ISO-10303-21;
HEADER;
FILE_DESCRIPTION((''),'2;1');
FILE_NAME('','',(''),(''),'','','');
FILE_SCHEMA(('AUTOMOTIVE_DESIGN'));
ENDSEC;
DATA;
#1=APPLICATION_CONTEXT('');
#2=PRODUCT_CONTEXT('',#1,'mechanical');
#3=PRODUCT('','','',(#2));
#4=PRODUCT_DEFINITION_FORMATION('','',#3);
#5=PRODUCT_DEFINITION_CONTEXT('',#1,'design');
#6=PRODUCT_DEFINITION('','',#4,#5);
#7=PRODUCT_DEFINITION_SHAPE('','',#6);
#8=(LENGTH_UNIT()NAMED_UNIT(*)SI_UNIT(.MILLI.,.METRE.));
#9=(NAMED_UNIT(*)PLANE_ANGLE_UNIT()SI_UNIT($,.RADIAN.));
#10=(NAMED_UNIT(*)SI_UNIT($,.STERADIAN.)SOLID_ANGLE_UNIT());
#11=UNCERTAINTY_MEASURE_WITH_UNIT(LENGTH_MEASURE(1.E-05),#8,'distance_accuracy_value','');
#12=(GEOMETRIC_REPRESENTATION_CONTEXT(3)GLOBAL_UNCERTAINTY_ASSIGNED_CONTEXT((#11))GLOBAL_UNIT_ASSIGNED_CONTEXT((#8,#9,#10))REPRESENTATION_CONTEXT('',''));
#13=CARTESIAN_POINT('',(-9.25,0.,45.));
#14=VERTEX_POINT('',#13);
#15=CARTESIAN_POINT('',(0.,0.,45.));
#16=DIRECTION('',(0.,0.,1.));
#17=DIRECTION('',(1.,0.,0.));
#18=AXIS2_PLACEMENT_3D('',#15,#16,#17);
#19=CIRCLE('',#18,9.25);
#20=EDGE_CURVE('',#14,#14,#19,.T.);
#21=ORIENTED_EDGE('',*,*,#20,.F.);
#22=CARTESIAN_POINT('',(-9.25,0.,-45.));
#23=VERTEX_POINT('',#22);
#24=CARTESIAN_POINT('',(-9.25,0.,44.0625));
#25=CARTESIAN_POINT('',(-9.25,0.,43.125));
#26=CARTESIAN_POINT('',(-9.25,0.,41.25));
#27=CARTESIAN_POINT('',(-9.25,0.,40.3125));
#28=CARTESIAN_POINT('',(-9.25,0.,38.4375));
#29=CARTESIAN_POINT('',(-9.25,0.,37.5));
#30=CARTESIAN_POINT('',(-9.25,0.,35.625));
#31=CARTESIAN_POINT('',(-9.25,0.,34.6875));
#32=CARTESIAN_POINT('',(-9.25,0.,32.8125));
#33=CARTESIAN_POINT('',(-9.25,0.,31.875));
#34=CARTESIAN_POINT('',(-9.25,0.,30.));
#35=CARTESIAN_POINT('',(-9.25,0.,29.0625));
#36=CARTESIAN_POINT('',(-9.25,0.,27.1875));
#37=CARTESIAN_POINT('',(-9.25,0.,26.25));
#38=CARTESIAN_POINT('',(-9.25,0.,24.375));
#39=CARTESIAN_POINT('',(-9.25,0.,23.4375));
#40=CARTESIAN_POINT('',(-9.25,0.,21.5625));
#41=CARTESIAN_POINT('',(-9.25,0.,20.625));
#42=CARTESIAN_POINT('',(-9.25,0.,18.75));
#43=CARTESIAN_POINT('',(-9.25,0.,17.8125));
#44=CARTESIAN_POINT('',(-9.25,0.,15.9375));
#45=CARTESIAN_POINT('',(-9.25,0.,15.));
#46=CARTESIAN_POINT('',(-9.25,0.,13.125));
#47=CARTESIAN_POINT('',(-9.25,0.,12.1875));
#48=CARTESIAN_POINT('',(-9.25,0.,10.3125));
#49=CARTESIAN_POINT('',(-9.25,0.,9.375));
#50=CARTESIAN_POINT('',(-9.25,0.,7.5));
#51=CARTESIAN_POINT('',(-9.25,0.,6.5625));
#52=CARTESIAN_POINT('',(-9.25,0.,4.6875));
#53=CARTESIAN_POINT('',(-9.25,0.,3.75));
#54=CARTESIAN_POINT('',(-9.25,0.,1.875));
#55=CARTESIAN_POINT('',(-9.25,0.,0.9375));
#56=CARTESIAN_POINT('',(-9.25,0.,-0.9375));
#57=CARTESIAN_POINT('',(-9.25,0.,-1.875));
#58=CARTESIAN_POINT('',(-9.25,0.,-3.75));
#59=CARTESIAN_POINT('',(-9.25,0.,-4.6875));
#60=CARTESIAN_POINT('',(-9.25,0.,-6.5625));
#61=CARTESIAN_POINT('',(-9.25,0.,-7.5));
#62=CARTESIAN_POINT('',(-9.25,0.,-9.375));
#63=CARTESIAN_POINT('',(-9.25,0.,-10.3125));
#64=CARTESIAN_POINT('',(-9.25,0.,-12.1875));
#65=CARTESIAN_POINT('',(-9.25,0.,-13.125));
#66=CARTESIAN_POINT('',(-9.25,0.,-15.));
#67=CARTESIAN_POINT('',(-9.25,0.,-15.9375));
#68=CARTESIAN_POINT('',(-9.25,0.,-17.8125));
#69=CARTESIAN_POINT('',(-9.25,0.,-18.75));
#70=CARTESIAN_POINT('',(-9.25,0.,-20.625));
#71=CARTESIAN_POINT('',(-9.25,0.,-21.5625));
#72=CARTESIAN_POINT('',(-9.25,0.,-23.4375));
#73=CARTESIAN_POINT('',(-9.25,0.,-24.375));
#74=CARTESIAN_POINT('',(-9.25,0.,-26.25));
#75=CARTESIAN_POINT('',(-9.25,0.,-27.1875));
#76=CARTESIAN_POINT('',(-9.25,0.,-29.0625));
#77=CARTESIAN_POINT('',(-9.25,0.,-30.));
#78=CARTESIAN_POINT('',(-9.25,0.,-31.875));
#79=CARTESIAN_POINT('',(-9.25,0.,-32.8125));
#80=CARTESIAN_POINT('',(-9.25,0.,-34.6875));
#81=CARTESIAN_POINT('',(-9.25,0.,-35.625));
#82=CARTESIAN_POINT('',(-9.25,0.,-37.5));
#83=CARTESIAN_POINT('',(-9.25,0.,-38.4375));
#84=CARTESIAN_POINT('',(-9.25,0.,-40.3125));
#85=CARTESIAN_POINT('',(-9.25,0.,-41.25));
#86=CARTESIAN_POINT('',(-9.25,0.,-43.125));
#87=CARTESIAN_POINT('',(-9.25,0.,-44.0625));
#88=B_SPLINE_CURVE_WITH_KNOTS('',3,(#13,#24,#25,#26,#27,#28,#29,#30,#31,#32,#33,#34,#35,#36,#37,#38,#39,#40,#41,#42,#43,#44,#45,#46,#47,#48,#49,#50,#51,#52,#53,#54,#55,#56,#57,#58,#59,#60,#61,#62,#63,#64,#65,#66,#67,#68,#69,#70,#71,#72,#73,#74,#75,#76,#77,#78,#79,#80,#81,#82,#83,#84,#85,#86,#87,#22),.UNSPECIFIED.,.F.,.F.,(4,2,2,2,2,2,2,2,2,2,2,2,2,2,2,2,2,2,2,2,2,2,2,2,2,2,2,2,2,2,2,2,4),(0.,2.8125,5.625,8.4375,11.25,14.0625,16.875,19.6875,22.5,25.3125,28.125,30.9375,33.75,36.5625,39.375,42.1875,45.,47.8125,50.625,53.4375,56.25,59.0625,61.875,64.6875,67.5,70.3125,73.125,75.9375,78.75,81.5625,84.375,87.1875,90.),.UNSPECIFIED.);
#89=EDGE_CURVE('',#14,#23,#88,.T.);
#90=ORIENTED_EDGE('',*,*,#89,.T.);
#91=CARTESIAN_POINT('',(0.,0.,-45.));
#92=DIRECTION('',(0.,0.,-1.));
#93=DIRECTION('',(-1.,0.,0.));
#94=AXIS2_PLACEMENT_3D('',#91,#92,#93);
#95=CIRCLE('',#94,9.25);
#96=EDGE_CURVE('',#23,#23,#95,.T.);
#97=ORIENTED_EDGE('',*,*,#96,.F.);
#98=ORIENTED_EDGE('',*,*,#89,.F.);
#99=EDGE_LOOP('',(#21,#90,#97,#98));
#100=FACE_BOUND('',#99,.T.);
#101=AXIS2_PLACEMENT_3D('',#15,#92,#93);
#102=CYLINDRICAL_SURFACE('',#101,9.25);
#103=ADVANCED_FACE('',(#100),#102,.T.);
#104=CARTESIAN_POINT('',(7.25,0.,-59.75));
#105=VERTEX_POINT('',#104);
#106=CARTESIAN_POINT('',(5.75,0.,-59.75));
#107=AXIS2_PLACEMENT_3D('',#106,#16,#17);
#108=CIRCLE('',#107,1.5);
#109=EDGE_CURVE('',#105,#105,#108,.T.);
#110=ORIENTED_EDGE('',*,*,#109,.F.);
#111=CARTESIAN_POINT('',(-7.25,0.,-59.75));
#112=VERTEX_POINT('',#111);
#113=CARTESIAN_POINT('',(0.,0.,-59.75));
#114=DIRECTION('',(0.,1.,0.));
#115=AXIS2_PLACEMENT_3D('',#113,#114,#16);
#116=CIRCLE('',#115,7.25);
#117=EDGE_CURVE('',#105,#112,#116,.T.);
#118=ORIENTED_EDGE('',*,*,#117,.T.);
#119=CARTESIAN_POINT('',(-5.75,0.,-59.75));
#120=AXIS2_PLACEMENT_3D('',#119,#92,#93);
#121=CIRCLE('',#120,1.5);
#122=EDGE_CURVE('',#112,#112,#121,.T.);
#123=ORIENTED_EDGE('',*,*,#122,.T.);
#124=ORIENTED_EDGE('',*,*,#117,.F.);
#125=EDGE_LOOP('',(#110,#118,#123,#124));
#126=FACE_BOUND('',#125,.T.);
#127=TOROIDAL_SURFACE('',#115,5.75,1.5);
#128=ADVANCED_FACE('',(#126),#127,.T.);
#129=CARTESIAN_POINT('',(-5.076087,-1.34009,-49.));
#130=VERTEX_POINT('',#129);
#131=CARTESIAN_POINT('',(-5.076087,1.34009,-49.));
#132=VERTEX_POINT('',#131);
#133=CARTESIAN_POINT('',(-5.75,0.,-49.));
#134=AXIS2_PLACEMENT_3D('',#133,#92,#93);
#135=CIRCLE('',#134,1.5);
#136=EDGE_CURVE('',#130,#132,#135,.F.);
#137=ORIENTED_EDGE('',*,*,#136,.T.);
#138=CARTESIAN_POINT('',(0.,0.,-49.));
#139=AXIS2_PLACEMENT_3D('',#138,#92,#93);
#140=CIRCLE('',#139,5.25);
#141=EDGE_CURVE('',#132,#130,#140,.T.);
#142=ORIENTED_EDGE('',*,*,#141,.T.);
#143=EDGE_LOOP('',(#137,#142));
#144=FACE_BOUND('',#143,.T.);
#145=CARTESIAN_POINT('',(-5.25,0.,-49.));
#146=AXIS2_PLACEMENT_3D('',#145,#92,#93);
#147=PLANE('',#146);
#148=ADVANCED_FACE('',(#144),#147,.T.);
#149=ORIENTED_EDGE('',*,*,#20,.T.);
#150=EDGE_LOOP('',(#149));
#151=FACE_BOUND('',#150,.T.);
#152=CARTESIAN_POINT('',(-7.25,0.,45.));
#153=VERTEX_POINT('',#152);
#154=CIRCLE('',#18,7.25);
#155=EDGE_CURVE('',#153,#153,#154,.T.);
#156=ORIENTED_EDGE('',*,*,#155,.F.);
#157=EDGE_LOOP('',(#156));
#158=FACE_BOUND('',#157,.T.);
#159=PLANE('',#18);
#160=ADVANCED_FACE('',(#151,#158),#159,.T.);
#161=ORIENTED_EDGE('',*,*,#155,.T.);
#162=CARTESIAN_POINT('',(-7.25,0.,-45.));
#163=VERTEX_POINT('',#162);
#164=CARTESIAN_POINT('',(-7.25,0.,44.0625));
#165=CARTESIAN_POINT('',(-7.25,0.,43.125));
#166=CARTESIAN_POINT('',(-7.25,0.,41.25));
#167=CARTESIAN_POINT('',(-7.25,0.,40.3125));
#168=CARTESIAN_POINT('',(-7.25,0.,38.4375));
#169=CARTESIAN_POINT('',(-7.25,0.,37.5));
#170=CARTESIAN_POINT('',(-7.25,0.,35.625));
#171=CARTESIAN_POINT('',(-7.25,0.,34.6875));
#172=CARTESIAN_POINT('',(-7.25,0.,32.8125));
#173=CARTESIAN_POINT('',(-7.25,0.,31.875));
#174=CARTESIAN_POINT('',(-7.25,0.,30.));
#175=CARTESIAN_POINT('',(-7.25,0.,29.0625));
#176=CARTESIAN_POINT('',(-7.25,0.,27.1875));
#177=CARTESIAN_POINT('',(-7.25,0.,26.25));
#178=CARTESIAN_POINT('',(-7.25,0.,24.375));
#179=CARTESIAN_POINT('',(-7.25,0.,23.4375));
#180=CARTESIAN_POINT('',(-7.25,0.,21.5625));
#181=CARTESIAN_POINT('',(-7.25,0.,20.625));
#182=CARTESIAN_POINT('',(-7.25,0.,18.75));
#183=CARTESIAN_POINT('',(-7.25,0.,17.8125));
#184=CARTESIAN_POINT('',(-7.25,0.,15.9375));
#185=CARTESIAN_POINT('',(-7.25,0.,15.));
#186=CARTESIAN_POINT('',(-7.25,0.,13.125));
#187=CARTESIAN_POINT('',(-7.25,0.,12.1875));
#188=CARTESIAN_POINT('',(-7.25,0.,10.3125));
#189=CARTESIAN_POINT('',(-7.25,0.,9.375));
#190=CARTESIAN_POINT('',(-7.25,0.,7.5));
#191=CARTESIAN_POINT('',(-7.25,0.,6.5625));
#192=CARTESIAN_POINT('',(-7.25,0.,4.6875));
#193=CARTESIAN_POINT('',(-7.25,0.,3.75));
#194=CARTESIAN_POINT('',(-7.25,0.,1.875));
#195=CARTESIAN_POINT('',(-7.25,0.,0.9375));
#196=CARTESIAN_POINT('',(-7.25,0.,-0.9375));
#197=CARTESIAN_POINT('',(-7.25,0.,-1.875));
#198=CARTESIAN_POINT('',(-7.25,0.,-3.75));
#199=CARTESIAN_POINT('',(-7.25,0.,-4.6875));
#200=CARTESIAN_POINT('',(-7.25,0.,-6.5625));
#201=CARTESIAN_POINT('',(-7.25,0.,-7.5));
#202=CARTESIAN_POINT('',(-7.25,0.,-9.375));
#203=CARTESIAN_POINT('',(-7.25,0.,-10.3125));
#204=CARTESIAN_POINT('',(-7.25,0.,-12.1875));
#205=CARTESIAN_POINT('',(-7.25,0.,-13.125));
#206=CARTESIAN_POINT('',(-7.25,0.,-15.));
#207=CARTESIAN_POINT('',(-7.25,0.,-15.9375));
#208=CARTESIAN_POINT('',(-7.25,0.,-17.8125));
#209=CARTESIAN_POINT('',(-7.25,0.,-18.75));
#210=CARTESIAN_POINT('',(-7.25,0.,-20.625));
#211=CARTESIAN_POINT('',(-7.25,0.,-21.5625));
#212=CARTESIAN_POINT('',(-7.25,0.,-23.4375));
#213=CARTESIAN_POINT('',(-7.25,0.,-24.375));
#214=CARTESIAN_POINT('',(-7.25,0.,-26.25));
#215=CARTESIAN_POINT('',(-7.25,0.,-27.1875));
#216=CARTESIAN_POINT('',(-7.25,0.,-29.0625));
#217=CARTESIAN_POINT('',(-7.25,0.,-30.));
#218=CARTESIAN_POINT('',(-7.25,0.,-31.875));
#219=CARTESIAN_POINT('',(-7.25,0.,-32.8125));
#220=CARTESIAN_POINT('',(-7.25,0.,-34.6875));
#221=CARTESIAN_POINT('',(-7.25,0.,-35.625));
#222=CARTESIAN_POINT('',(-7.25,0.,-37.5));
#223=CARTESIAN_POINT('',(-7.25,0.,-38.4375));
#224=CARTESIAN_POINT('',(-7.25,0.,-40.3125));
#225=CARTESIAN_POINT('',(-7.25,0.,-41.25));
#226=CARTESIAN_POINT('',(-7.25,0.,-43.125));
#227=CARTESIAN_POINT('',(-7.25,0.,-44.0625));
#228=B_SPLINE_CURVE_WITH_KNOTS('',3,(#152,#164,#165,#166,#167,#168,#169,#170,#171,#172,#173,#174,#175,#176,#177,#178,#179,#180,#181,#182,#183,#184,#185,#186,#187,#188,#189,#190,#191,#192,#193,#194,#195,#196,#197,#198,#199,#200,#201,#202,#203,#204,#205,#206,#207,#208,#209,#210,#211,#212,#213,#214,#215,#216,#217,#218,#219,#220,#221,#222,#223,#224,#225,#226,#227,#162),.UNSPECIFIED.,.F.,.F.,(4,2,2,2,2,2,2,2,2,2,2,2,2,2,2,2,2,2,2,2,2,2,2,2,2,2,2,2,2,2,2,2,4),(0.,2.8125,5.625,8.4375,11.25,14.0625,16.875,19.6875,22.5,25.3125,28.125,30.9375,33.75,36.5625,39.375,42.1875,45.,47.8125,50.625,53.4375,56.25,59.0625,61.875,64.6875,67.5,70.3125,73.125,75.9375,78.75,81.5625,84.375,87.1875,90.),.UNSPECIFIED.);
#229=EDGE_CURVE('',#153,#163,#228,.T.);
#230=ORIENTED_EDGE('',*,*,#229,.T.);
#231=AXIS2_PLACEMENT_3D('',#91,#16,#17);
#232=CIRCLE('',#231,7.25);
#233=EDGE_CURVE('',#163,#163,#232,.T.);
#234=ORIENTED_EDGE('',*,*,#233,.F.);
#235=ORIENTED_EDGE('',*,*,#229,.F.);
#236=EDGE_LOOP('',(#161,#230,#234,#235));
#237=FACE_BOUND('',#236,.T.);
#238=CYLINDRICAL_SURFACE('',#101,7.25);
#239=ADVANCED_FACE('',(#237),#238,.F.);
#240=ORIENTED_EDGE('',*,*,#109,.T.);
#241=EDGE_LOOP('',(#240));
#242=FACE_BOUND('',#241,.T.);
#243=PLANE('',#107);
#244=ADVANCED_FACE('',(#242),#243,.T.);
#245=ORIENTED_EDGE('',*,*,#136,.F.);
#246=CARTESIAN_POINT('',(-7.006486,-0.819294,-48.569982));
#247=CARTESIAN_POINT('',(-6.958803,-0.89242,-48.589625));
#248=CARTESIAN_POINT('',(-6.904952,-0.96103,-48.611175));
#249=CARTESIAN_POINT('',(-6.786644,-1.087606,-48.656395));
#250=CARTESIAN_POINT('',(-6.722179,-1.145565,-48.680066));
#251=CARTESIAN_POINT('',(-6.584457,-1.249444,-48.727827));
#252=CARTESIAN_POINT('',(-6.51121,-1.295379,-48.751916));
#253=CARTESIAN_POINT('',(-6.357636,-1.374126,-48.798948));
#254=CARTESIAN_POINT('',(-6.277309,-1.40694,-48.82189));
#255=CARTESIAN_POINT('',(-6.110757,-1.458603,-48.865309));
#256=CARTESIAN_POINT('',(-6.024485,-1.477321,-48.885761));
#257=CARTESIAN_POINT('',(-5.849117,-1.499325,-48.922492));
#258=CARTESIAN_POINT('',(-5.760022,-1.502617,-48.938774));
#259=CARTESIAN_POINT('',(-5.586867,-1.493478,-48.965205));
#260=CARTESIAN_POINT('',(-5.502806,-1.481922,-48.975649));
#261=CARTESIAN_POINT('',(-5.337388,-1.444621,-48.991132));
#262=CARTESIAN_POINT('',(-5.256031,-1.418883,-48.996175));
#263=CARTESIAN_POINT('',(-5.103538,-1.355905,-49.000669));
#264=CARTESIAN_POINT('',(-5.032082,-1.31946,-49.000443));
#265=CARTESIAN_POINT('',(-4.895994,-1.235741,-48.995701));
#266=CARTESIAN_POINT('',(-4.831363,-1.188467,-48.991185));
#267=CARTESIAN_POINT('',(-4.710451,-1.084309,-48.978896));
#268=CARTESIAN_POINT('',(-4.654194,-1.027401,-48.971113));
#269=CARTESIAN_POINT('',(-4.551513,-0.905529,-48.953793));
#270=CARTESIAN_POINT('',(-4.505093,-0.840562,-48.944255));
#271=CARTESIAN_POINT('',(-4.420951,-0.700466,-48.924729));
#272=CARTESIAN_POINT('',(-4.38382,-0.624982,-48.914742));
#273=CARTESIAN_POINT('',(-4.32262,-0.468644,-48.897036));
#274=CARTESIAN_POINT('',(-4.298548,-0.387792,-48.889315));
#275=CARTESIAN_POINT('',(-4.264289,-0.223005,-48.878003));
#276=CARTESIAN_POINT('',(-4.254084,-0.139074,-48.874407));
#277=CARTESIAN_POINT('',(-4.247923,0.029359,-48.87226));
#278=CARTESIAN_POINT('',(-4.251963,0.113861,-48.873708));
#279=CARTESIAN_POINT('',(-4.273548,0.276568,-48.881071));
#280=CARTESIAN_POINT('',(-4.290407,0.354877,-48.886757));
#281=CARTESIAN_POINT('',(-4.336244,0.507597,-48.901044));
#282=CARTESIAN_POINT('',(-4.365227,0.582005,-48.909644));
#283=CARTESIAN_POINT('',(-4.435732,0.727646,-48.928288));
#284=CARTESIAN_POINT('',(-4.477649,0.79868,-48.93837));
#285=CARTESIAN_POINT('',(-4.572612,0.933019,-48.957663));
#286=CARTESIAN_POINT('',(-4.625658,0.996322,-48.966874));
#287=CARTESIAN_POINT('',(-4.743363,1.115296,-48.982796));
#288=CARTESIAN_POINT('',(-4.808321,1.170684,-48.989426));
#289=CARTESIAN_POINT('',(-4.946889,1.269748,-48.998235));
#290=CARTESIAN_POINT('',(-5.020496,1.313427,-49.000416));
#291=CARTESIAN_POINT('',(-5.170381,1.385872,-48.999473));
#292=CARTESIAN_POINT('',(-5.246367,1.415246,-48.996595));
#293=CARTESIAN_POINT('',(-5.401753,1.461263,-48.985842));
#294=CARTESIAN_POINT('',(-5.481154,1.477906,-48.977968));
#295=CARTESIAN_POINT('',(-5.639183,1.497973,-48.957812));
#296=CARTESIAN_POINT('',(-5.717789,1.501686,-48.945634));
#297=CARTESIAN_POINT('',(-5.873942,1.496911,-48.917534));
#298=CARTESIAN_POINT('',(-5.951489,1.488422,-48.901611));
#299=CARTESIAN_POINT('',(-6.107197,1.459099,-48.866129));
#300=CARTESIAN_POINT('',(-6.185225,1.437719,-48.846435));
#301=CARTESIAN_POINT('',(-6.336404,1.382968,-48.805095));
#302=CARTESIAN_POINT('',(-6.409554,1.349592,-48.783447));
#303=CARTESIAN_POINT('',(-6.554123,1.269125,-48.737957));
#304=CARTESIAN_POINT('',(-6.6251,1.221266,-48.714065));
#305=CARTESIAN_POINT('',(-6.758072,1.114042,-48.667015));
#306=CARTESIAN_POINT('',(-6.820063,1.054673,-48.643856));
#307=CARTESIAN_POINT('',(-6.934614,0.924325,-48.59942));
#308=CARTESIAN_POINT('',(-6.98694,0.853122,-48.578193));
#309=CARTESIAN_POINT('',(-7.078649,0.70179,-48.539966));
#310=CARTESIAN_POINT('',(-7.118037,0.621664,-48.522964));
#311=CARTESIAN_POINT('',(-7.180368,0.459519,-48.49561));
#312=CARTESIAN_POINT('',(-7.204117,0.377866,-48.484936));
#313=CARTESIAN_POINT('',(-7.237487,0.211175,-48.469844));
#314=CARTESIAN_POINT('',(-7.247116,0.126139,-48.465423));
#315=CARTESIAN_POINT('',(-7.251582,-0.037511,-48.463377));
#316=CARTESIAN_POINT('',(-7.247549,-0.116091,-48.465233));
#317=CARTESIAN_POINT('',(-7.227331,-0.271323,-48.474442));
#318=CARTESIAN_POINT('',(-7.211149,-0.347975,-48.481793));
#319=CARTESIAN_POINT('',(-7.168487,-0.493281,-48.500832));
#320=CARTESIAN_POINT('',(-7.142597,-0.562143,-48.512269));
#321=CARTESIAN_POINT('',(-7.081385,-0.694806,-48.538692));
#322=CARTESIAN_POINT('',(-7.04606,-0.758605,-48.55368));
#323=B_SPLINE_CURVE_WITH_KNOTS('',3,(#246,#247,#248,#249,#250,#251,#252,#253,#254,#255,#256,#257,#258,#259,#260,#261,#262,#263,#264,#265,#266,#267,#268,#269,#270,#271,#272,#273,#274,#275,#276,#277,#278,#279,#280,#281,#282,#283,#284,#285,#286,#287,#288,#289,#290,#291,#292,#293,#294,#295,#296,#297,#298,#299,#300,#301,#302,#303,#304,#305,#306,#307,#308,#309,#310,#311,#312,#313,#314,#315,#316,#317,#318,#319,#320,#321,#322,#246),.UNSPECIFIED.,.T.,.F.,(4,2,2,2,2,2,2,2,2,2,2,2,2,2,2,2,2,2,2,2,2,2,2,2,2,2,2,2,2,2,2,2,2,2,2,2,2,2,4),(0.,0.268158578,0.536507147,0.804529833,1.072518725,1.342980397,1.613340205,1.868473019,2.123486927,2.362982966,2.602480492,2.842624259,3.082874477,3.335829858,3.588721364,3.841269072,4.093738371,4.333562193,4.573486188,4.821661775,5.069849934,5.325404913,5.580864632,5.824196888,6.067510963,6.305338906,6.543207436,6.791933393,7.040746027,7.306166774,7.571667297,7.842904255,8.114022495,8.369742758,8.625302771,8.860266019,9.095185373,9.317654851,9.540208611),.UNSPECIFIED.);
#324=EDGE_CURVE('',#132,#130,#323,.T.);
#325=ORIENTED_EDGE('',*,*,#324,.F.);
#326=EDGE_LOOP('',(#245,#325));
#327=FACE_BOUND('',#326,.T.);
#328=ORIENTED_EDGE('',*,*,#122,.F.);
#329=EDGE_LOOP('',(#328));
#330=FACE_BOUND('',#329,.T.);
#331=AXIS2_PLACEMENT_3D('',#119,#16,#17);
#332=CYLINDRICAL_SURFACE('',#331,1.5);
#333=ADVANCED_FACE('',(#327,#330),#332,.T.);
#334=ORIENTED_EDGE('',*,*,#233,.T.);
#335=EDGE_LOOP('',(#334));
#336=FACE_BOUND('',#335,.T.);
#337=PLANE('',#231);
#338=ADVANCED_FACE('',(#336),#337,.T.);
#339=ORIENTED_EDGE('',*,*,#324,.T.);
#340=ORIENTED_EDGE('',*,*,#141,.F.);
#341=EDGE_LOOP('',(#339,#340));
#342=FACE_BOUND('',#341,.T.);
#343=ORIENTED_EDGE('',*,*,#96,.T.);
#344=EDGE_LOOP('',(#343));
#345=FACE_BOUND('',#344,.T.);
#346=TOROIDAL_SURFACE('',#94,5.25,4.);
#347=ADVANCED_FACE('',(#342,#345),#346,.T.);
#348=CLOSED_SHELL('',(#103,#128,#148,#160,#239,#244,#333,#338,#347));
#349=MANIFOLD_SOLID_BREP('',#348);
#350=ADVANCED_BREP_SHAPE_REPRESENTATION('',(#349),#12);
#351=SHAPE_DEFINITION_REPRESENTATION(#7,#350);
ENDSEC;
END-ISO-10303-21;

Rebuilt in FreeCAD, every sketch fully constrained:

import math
import FreeCAD as App
import Part
import Sketcher

doc = App.newDocument("Part")
body = doc.addObject("PartDesign::Body", "Body")

# Sketch on XY plane
sketch1 = body.newObject("Sketcher::SketchObject", "Sketch")
sketch1.AttachmentSupport = (doc.getObject("XY_Plane"), [""])
sketch1.MapMode = "FlatFace"
sketch1.addGeometry(Part.Circle(App.Vector(0, 0, 0), App.Vector(0, 0, 1), 9), False)
sketch1.addGeometry(Part.Circle(App.Vector(0, 0, 0), App.Vector(0, 0, 1), 7), False)
sketch1.addConstraint(Sketcher.Constraint("Coincident", 0, 3, -1, 1))
sketch1.addConstraint(Sketcher.Constraint("Coincident", 1, 3, -1, 1))
sketch1.addConstraint(Sketcher.Constraint("Diameter", 0, 18.5))
sketch1.addConstraint(Sketcher.Constraint("Diameter", 1, 14.5))
pad1 = body.newObject("PartDesign::Pad", "Pad")
pad1.Profile = sketch1
pad1.Length = 90
pad1.Midplane = True

# Sketch on XZ plane
sketch2 = body.newObject("Sketcher::SketchObject", "Sketch001")
sketch2.AttachmentSupport = (doc.getObject("XZ_Plane"), [""])
sketch2.MapMode = "FlatFace"
sketch2.addGeometry(Part.LineSegment(App.Vector(0, -49, 0), App.Vector(-5.2, -49, 0)), False)
sketch2.addGeometry(Part.ArcOfCircle(Part.Circle(App.Vector(-5.3, -45, 0), App.Vector(0, 0, 1), 4), math.radians(180), math.radians(270)), False)
sketch2.addGeometry(Part.LineSegment(App.Vector(-9.2, -45, 0), App.Vector(0, -45, 0)), False)
sketch2.addGeometry(Part.LineSegment(App.Vector(0, -45, 0), App.Vector(0, -49, 0)), False)
sketch2.addConstraint(Sketcher.Constraint("Tangent", 0, 2, 1, 2))
sketch2.addConstraint(Sketcher.Constraint("Coincident", 1, 1, 2, 1))
sketch2.addConstraint(Sketcher.Constraint("Coincident", 2, 2, 3, 1))
sketch2.addConstraint(Sketcher.Constraint("Coincident", 3, 2, 0, 1))
sketch2.addConstraint(Sketcher.Constraint("Horizontal", 0))
sketch2.addConstraint(Sketcher.Constraint("Horizontal", 2))
sketch2.addConstraint(Sketcher.Constraint("Vertical", 3))
sketch2.addConstraint(Sketcher.Constraint("PointOnObject", 2, 2, -2))
sketch2.addConstraint(Sketcher.Constraint("Radius", 1, 4.0))
sketch2.addConstraint(Sketcher.Constraint("DistanceY", 3, 2, 3, 1, 4.0))
sketch2.addConstraint(Sketcher.Constraint("DistanceY", 1, 3, -1, 1, 45.0))
sketch2.addConstraint(Sketcher.Constraint("DistanceX", 0, 2, 0, 1, 5.25))
revolution = body.newObject("PartDesign::Revolution", "Revolution")
revolution.Profile = sketch2
revolution.ReferenceAxis = (sketch2, ["V_Axis"])
revolution.Angle = 360

# Sketch on YZ plane
sketch3 = body.newObject("Sketcher::SketchObject", "Sketch002")
sketch3.AttachmentSupport = (doc.getObject("YZ_Plane"), [""])
sketch3.MapMode = "FlatFace"
sketch3.addGeometry(Part.Circle(App.Vector(0, -65.5, 0), App.Vector(0, 0, 1), 1.5), False)
sketch3.addConstraint(Sketcher.Constraint("PointOnObject", 0, 3, -2))
sketch3.addConstraint(Sketcher.Constraint("Diameter", 0, 3.0))
sketch3.addConstraint(Sketcher.Constraint("DistanceY", 0, 3, -1, 1, 65.5))

# Sketch on XZ plane
sketch4 = body.newObject("Sketcher::SketchObject", "Sketch003")
sketch4.AttachmentSupport = (doc.getObject("XZ_Plane"), [""])
sketch4.MapMode = "FlatFace"
sketch4.addGeometry(Part.LineSegment(App.Vector(-4.2, -45, 0), App.Vector(-4.2, -59.8, 0)), False)
sketch4.addGeometry(Part.ArcOfCircle(Part.Circle(App.Vector(0, -59.8, 0), App.Vector(0, 0, 1), 4.2), math.radians(180), math.radians(360)), False)
sketch4.addConstraint(Sketcher.Constraint("Tangent", 0, 2, 1, 1))
sketch4.addConstraint(Sketcher.Constraint("Vertical", 0))
sketch4.addConstraint(Sketcher.Constraint("Symmetric", 0, 2, 1, 2, -2))
sketch4.addConstraint(Sketcher.Constraint("Radius", 1, 4.25))
sketch4.addConstraint(Sketcher.Constraint("DistanceY", 0, 1, -1, 1, 45.0))
sketch4.addConstraint(Sketcher.Constraint("DistanceY", 0, 2, 0, 1, 14.75))
doc.recompute()

additivepipe = body.newObject("PartDesign::AdditivePipe", "AdditivePipe")
additivepipe.Profile = sketch3
additivepipe.Spine = (sketch4, ["Edge1", "Edge2"])

doc.recompute()
